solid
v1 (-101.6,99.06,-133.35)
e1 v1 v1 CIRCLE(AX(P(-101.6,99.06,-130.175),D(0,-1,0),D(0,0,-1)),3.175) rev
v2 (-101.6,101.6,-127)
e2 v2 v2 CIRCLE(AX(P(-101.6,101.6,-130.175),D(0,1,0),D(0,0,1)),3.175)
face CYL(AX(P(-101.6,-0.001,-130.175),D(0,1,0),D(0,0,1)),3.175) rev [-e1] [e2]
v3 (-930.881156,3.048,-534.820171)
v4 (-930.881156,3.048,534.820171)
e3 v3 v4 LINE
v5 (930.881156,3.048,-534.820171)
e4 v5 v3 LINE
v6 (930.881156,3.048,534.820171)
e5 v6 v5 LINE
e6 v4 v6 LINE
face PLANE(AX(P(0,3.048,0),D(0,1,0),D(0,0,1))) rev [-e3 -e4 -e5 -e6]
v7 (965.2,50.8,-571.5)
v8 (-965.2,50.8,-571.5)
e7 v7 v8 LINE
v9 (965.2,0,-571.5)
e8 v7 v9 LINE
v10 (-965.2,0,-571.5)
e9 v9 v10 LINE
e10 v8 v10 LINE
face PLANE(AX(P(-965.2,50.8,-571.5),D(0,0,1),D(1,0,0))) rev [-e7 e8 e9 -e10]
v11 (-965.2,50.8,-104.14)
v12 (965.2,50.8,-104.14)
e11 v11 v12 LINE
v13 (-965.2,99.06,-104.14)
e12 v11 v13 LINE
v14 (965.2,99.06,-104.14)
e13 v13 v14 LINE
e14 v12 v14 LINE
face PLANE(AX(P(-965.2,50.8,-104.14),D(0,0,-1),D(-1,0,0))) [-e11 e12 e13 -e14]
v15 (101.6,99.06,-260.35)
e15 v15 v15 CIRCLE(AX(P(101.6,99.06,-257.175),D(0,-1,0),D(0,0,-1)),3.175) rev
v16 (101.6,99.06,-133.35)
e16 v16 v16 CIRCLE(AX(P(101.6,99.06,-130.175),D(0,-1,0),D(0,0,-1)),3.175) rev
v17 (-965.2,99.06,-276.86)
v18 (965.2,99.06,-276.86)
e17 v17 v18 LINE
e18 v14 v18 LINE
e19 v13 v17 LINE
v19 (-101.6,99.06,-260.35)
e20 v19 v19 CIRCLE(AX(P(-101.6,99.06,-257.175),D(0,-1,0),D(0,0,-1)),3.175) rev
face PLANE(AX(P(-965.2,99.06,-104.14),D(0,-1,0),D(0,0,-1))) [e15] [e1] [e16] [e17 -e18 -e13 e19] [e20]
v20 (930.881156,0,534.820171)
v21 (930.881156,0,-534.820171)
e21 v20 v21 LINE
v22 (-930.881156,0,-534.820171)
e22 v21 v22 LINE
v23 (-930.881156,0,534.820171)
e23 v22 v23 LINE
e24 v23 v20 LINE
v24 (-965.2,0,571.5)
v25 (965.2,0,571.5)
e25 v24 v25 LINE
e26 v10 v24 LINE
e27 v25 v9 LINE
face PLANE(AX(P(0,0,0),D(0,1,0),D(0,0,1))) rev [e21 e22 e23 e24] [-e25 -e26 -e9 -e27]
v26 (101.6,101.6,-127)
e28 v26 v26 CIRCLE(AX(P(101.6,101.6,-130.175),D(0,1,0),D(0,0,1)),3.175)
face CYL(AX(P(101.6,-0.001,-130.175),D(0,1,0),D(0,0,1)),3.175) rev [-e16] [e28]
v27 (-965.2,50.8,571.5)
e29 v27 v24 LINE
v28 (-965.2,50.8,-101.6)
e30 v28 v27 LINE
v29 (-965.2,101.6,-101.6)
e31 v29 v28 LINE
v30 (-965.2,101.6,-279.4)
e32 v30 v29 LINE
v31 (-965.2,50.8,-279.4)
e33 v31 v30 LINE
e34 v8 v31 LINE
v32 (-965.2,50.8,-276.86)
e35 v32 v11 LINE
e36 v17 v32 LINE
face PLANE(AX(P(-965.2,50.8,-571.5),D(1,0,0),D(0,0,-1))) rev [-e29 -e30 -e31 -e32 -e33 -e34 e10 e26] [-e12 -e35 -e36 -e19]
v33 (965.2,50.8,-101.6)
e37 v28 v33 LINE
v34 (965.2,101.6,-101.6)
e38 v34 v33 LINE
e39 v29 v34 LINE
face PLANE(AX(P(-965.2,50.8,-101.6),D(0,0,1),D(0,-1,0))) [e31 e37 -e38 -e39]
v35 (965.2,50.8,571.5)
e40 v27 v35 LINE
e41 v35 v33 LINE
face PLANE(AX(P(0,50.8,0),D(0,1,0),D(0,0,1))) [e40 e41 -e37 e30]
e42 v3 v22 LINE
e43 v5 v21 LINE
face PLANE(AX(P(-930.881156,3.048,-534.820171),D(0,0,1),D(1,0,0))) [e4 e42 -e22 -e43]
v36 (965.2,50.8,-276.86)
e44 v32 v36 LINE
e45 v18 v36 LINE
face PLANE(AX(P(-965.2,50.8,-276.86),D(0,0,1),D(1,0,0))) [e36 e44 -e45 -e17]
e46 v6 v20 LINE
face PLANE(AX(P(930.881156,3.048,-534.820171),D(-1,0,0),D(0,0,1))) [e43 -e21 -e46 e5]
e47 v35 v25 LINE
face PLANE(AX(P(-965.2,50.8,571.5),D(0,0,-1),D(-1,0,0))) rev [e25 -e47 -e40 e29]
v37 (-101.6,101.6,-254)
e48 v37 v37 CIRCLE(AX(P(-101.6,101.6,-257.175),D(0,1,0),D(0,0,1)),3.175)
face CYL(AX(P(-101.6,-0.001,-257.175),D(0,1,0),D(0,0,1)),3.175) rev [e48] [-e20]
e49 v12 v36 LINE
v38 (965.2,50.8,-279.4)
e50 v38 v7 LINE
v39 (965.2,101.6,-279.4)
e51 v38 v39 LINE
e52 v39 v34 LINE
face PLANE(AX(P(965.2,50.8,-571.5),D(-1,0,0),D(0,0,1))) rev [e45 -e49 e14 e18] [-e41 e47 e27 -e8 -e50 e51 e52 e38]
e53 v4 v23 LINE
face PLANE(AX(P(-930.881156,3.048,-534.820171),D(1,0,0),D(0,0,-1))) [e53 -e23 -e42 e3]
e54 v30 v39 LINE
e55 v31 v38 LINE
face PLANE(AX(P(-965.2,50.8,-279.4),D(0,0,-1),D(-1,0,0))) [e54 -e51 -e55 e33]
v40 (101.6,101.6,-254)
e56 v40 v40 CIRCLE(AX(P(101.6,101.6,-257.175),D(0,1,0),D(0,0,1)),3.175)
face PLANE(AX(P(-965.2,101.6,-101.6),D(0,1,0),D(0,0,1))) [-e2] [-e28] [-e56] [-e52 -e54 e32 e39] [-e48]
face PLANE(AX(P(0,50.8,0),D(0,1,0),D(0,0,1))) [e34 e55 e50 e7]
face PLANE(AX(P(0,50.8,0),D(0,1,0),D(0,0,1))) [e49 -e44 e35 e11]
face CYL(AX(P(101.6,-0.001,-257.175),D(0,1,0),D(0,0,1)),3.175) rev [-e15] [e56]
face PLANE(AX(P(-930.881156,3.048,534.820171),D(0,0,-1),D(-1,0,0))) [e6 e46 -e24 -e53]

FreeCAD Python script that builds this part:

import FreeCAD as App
import Part
import Sketcher
from FreeCAD import Vector
Q = App.Units.Quantity


def add_polygon(sketch, points):
    """Adds a closed chain of lines whose ends are joined by coincident constraints."""
    first, n = sketch.GeometryCount, len(points)
    for a, b in zip(points, points[1:] + points[:1]):
        sketch.addGeometry(Part.LineSegment(App.Vector(*a, 0), App.Vector(*b, 0)), False)
    for i in range(n):
        sketch.addConstraint(Sketcher.Constraint("Coincident", first + i, 2, first + (i + 1) % n, 1))

doc = App.newDocument("Part")
body = doc.addObject("PartDesign::Body", "Body")

# Sketch on XZ plane
sketch1 = body.newObject("Sketcher::SketchObject", "Sketch")
sketch1.AttachmentSupport = (doc.getObject("XZ_Plane"), [""])
sketch1.MapMode = "FlatFace"
add_polygon(sketch1, [(-965, -572), (-965, 572), (965, 572), (965, -572)])  # lines 0-3
sketch1.addConstraint(Sketcher.Constraint("Vertical", 0))
sketch1.addConstraint(Sketcher.Constraint("Horizontal", 1))
sketch1.addConstraint(Sketcher.Constraint("Vertical", 2))
sketch1.addConstraint(Sketcher.Constraint("Horizontal", 3))
sketch1.addConstraint(Sketcher.Constraint("Symmetric", 0, 2, 2, 2, -1, 1))
sketch1.addConstraint(Sketcher.Constraint("DistanceX", 1, 1, 1, 2, Q("76 in")))
sketch1.addConstraint(Sketcher.Constraint("DistanceY", 0, 1, 0, 2, Q("45 in")))
pad1 = body.newObject("PartDesign::Pad", "Pad")
pad1.Profile = sketch1
pad1.Length = Q("2 in")
pad1.Reversed = True

# Sketch on XZ plane
sketch2 = body.newObject("Sketcher::SketchObject", "Sketch001")
sketch2.AttachmentSupport = (doc.getObject("XZ_Plane"), [""])
sketch2.MapMode = "FlatFace"
add_polygon(sketch2, [(-931, -535), (-931, 535), (931, 535), (931, -535)])  # lines 0-3
sketch2.addConstraint(Sketcher.Constraint("Vertical", 0))
sketch2.addConstraint(Sketcher.Constraint("Horizontal", 1))
sketch2.addConstraint(Sketcher.Constraint("Vertical", 2))
sketch2.addConstraint(Sketcher.Constraint("Horizontal", 3))
sketch2.addConstraint(Sketcher.Constraint("Symmetric", 0, 2, 2, 2, -1, 1))
sketch2.addConstraint(Sketcher.Constraint("DistanceY", 0, 1, 0, 2, Q("1069.640341 mm")))
sketch2.addConstraint(Sketcher.Constraint("DistanceX", 1, 1, 1, 2, Q("1861.762312 mm")))
pocket1 = body.newObject("PartDesign::Pocket", "Pocket")
pocket1.Profile = sketch2
pocket1.Length = Q("0.12 in")

# Sketch on YZ plane
sketch3 = body.newObject("Sketcher::SketchObject", "Sketch002")
sketch3.AttachmentSupport = (doc.getObject("YZ_Plane"), [""])
sketch3.MapMode = "FlatFace"
sketch3.AttachmentOffset = App.Placement(Vector(0, 0, 38 * 25.4), App.Rotation())
add_polygon(sketch3, [(50.8, -101.6), (50.8, -104.1), (99.1, -104.1), (99.1, -276.9), (50.8, -276.9), (50.8, -279.4), (101.6, -279.4), (101.6, -101.6)])  # lines 0-7
sketch3.addConstraint(Sketcher.Constraint("Vertical", 0))
sketch3.addConstraint(Sketcher.Constraint("Horizontal", 1))
sketch3.addConstraint(Sketcher.Constraint("Vertical", 2))
sketch3.addConstraint(Sketcher.Constraint("Horizontal", 3))
sketch3.addConstraint(Sketcher.Constraint("Vertical", 4))
sketch3.addConstraint(Sketcher.Constraint("Horizontal", 5))
sketch3.addConstraint(Sketcher.Constraint("Vertical", 6))
sketch3.addConstraint(Sketcher.Constraint("Horizontal", 7))
sketch3.addConstraint(Sketcher.Constraint("Vertical", 0, 2, 3, 2))
sketch3.addConstraint(Sketcher.Constraint("Equal", 0, 4))
sketch3.addConstraint(Sketcher.Constraint("DistanceX", 5, 1, 5, 2, Q("2 in")))
sketch3.addConstraint(Sketcher.Constraint("DistanceY", 6, 1, 6, 2, Q("7 in")))
sketch3.addConstraint(Sketcher.Constraint("DistanceX", 1, 1, 1, 2, Q("1.9 in")))
sketch3.addConstraint(Sketcher.Constraint("DistanceY", 0, 2, 0, 1, Q("0.1 in")))
sketch3.addConstraint(Sketcher.Constraint("DistanceX", -1, 1, 0, 2, Q("2 in")))
sketch3.addConstraint(Sketcher.Constraint("DistanceY", 4, 2, -1, 1, Q("11 in")))
pad2 = body.newObject("PartDesign::Pad", "Pad001")
pad2.Profile = sketch3
pad2.Length = Q("76 in")
pad2.Reversed = True

# Sketch on XZ plane
sketch4 = body.newObject("Sketcher::SketchObject", "Sketch003")
sketch4.AttachmentSupport = (doc.getObject("XZ_Plane"), [""])
sketch4.MapMode = "FlatFace"
sketch4.AttachmentOffset = App.Placement(Vector(0, 0, -4 * 25.4), App.Rotation())
sketch4.addGeometry(Part.Circle(Vector(101.6, -130.2, 0), Vector(0, 0, 1), 3.2), False)
sketch4.addConstraint(Sketcher.Constraint("Diameter", 0, Q("0.25 in")))
sketch4.addConstraint(Sketcher.Constraint("DistanceX", -1, 1, 0, 3, Q("4 in")))
sketch4.addConstraint(Sketcher.Constraint("DistanceY", 0, 3, -1, 1, Q("5.125 in")))
pocket2 = body.newObject("PartDesign::Pocket", "Pocket001")
pocket2.Profile = sketch4
pocket2.Type = "UpToFirst"
pocket2.Reversed = True

# Sketch on XZ plane
sketch5 = body.newObject("Sketcher::SketchObject", "Sketch004")
sketch5.AttachmentSupport = (doc.getObject("XZ_Plane"), [""])
sketch5.MapMode = "FlatFace"
sketch5.AttachmentOffset = App.Placement(Vector(0, 0, -4 * 25.4), App.Rotation())
sketch5.addGeometry(Part.Circle(Vector(-101.6, -130.2, 0), Vector(0, 0, 1), 3.2), False)
sketch5.addConstraint(Sketcher.Constraint("Diameter", 0, Q("0.25 in")))
sketch5.addConstraint(Sketcher.Constraint("DistanceX", 0, 3, -1, 1, Q("4 in")))
sketch5.addConstraint(Sketcher.Constraint("DistanceY", 0, 3, -1, 1, Q("5.125 in")))
pocket3 = body.newObject("PartDesign::Pocket", "Pocket002")
pocket3.Profile = sketch5
pocket3.Type = "UpToFirst"
pocket3.Reversed = True

# Sketch on XZ plane
sketch6 = body.newObject("Sketcher::SketchObject", "Sketch005")
sketch6.AttachmentSupport = (doc.getObject("XZ_Plane"), [""])
sketch6.MapMode = "FlatFace"
sketch6.AttachmentOffset = App.Placement(Vector(0, 0, -4 * 25.4), App.Rotation())
sketch6.addGeometry(Part.Circle(Vector(-101.6, -257.2, 0), Vector(0, 0, 1), 3.2), False)
sketch6.addConstraint(Sketcher.Constraint("Diameter", 0, Q("0.25 in")))
sketch6.addConstraint(Sketcher.Constraint("DistanceX", 0, 3, -1, 1, Q("4 in")))
sketch6.addConstraint(Sketcher.Constraint("DistanceY", 0, 3, -1, 1, Q("10.125 in")))
pocket4 = body.newObject("PartDesign::Pocket", "Pocket003")
pocket4.Profile = sketch6
pocket4.Type = "UpToFirst"
pocket4.Reversed = True

# Sketch on XZ plane
sketch7 = body.newObject("Sketcher::SketchObject", "Sketch006")
sketch7.AttachmentSupport = (doc.getObject("XZ_Plane"), [""])
sketch7.MapMode = "FlatFace"
sketch7.AttachmentOffset = App.Placement(Vector(0, 0, -4 * 25.4), App.Rotation())
sketch7.addGeometry(Part.Circle(Vector(101.6, -257.2, 0), Vector(0, 0, 1), 3.2), False)
sketch7.addConstraint(Sketcher.Constraint("Diameter", 0, Q("0.25 in")))
sketch7.addConstraint(Sketcher.Constraint("DistanceX", -1, 1, 0, 3, Q("4 in")))
sketch7.addConstraint(Sketcher.Constraint("DistanceY", 0, 3, -1, 1, Q("10.125 in")))
pocket5 = body.newObject("PartDesign::Pocket", "Pocket004")
pocket5.Profile = sketch7
pocket5.Type = "UpToFirst"
pocket5.Reversed = True

doc.recompute()
